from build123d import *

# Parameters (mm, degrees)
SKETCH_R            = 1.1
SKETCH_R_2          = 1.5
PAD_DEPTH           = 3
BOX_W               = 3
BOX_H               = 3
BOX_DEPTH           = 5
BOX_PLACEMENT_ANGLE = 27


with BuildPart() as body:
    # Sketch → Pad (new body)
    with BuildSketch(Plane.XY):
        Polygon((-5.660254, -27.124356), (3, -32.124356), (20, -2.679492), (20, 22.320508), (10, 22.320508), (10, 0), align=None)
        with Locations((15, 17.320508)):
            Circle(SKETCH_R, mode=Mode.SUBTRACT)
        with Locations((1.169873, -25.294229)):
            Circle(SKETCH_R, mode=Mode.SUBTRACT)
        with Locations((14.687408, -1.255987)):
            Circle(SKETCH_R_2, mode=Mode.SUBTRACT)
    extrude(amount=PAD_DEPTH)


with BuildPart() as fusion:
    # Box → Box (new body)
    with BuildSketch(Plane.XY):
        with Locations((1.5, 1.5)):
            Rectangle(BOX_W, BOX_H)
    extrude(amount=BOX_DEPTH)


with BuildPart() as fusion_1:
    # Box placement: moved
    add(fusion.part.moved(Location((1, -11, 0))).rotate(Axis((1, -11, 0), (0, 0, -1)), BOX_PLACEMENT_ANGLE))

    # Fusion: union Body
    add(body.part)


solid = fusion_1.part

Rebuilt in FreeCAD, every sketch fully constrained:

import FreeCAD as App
import Part
import Sketcher
Q = App.Units.Quantity

doc = App.newDocument("Part")
params = doc.addObject("Spreadsheet::Sheet", "Params")
for row, (alias, value) in enumerate([
    ("sketch1_diameter", "3 mm"),
    ("sketch1_diameter2", "2.2 mm"),
    ("sketch1_width", "10 mm"),
    ("sketch1_height", "25 mm"),
    ("sketch1_length", "10 mm"),
    ("pad1_length", "3 mm"),
    ("sketch2_width", "3 mm"),
    ("pad2_length", "5 mm"),
], start=1):
    params.set(f"A{row}", alias)
    params.set(f"B{row}", "=" + value)
    params.setAlias(f"B{row}", alias)

body = doc.addObject("PartDesign::Body", "Body")

sketch1 = body.newObject("Sketcher::SketchObject", "Sketch")
sketch1.AttachmentSupport = (doc.getObject("XY_Plane"), [""])
sketch1.MapMode = "FlatFace"
sketch1.addGeometry(Part.LineSegment(App.Vector(-5.7, -27.1, 0), App.Vector(3, -32.1, 0)), False)
sketch1.addGeometry(Part.LineSegment(App.Vector(3, -32.1, 0), App.Vector(20, -2.7, 0)), False)
sketch1.addGeometry(Part.LineSegment(App.Vector(20, -2.7, 0), App.Vector(20, 22.3, 0)), False)
sketch1.addGeometry(Part.LineSegment(App.Vector(20, 22.3, 0), App.Vector(10, 22.3, 0)), False)
sketch1.addGeometry(Part.LineSegment(App.Vector(10, 22.3, 0), App.Vector(10, 0, 0)), False)
sketch1.addGeometry(Part.LineSegment(App.Vector(10, 0, 0), App.Vector(-5.7, -27.1, 0)), False)
sketch1.addGeometry(Part.Circle(App.Vector(1.2, -25.3, 0), App.Vector(0, 0, 1), 1.1), False)
sketch1.addGeometry(Part.Circle(App.Vector(14.7, -1.3, 0), App.Vector(0, 0, 1), 1.5), False)
sketch1.addGeometry(Part.Circle(App.Vector(15, 17.3, 0), App.Vector(0, 0, 1), 1.1), False)
sketch1.addConstraint(Sketcher.Constraint("Coincident", 0, 2, 1, 1))
sketch1.addConstraint(Sketcher.Constraint("Coincident", 1, 2, 2, 1))
sketch1.addConstraint(Sketcher.Constraint("Coincident", 2, 2, 3, 1))
sketch1.addConstraint(Sketcher.Constraint("Coincident", 3, 2, 4, 1))
sketch1.addConstraint(Sketcher.Constraint("Coincident", 4, 2, 5, 1))
sketch1.addConstraint(Sketcher.Constraint("Coincident", 5, 2, 0, 1))
sketch1.addConstraint(Sketcher.Constraint("Vertical", 2))
sketch1.addConstraint(Sketcher.Constraint("Horizontal", 3))
sketch1.addConstraint(Sketcher.Constraint("Vertical", 4))
sketch1.addConstraint(Sketcher.Constraint("Equal", 6, 8))
sketch1.addConstraint(Sketcher.Constraint("PointOnObject", 4, 2, -1))
sketch1.addConstraint(Sketcher.Constraint("Perpendicular", 0, 1))
sketch1.addConstraint(Sketcher.Constraint("Parallel", 1, 5))
sketch1.addConstraint(Sketcher.Constraint("Diameter", 7, 3.0))
sketch1.addConstraint(Sketcher.Constraint("Diameter", 6, 2.2))
sketch1.addConstraint(Sketcher.Constraint("DistanceX", 3, 2, 3, 1, 10.0))
sketch1.addConstraint(Sketcher.Constraint("DistanceY", 2, 1, 2, 2, 25.0))
sketch1.addConstraint(Sketcher.Constraint("Angle", 0, Q("-30 deg")))
sketch1.addConstraint(Sketcher.Constraint("Distance", 0, 10.0))
sketch1.addConstraint(Sketcher.Constraint("Distance", 1, 34.0))
sketch1.addConstraint(Sketcher.Constraint("DistanceX", -1, 1, 8, 3, 15.0))
sketch1.addConstraint(Sketcher.Constraint("DistanceX", -1, 1, 0, 2, 3.0))
sketch1.addConstraint(Sketcher.Constraint("DistanceY", 1, 2, 8, 3, 20.0))
sketch1.addConstraint(Sketcher.Constraint("DistanceY", 6, 3, -1, 1, 25.294229))
sketch1.addConstraint(Sketcher.Constraint("DistanceY", 0, 2, 7, 3, 30.868369))
sketch1.addConstraint(Sketcher.Constraint("DistanceX", 5, 2, 7, 3, 20.347662))
sketch1.addConstraint(Sketcher.Constraint("DistanceX", -1, 1, 6, 3, 1.169873))
sketch1.setExpression("Constraints[13]", "Params.sketch1_diameter")
sketch1.setExpression("Constraints[14]", "Params.sketch1_diameter2")
sketch1.setExpression("Constraints[15]", "Params.sketch1_width")
sketch1.setExpression("Constraints[16]", "Params.sketch1_height")
sketch1.setExpression("Constraints[18]", "Params.sketch1_length")
pad1 = body.newObject("PartDesign::Pad", "Pad")
pad1.Profile = sketch1
pad1.setExpression("Length", "Params.pad1_length")
body2 = doc.addObject("PartDesign::Body", "Body001")

sketch2 = body2.newObject("Sketcher::SketchObject", "Sketch001")
sketch2.AttachmentSupport = (doc.getObject("XY_Plane001"), [""])
sketch2.MapMode = "FlatFace"
sketch2.addGeometry(Part.LineSegment(App.Vector(0, 3, 0), App.Vector(0, 0, 0)), False)
sketch2.addGeometry(Part.LineSegment(App.Vector(0, 0, 0), App.Vector(3, 0, 0)), False)
sketch2.addGeometry(Part.LineSegment(App.Vector(3, 0, 0), App.Vector(3, 3, 0)), False)
sketch2.addGeometry(Part.LineSegment(App.Vector(3, 3, 0), App.Vector(0, 3, 0)), False)
sketch2.addConstraint(Sketcher.Constraint("Coincident", 0, 2, 1, 1))
sketch2.addConstraint(Sketcher.Constraint("Coincident", 1, 2, 2, 1))
sketch2.addConstraint(Sketcher.Constraint("Coincident", 2, 2, 3, 1))
sketch2.addConstraint(Sketcher.Constraint("Coincident", 3, 2, 0, 1))
sketch2.addConstraint(Sketcher.Constraint("Vertical", 0))
sketch2.addConstraint(Sketcher.Constraint("Horizontal", 1))
sketch2.addConstraint(Sketcher.Constraint("Vertical", 2))
sketch2.addConstraint(Sketcher.Constraint("Horizontal", 3))
sketch2.addConstraint(Sketcher.Constraint("Coincident", 0, 2, -1, 1))
sketch2.addConstraint(Sketcher.Constraint("Equal", 3, 0))
sketch2.addConstraint(Sketcher.Constraint("DistanceX", 1, 1, 1, 2, 3.0))
sketch2.setExpression("Constraints[10]", "Params.sketch2_width")
pad2 = body2.newObject("PartDesign::Pad", "Pad001")
pad2.Profile = sketch2
pad2.setExpression("Length", "Params.pad2_length")
body3 = doc.addObject("PartDesign::Body", "Body002")
doc.recompute()

body2.Placement = App.Placement(App.Vector(1, -11, 0), App.Rotation(App.Vector(0, 0, -1), 27))
boolean = body3.newObject("PartDesign::Boolean", "Boolean")
boolean.Type = "Fuse"
boolean.addObjects([body2])
doc.recompute()

boolean2 = body3.newObject("PartDesign::Boolean", "Boolean001")
boolean2.Type = "Fuse"
boolean2.addObjects([body])

doc.recompute()
